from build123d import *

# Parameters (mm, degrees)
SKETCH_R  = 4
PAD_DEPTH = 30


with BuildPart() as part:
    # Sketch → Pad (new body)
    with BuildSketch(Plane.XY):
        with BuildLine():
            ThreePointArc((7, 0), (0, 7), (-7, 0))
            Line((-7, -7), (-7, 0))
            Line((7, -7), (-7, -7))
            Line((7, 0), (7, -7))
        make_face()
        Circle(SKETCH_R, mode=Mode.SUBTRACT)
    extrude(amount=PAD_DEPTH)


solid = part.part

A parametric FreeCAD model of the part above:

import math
import FreeCAD as App
import Part
import Sketcher
Q = App.Units.Quantity

doc = App.newDocument("Part")
body = doc.addObject("PartDesign::Body", "Body")

sketch1 = doc.addObject("Sketcher::SketchObject", "Sketch")
body.addObject(sketch1)
sketch1.AttachmentSupport = (doc.XY_Plane, [""])
sketch1.MapMode = "FlatFace"
sketch1.addGeometry([
    Part.ArcOfCircle(Part.Circle(App.Vector(0, 0, 0), App.Vector(0, 0, 1), 7), math.radians(0), math.radians(180)),
    Part.LineSegment(App.Vector(-7, 0, 0), App.Vector(-7, -7, 0)),
    Part.LineSegment(App.Vector(-7, -7, 0), App.Vector(7, -7, 0)),
    Part.LineSegment(App.Vector(7, -7, 0), App.Vector(7, 0, 0)),
    Part.Circle(App.Vector(0, 0, 0), App.Vector(0, 0, 1), 4),
], False)
sketch1.addConstraint([
    Sketcher.Constraint("Tangent", 0, 2, 1, 1),
    Sketcher.Constraint("Coincident", 1, 2, 2, 1),
    Sketcher.Constraint("Coincident", 2, 2, 3, 1),
    Sketcher.Constraint("Tangent", 3, 2, 0, 1),
    Sketcher.Constraint("Vertical", 1),
    Sketcher.Constraint("Horizontal", 2),
    Sketcher.Constraint("Vertical", 3),
    Sketcher.Constraint("Coincident", 0, 3, -1, 1),
    Sketcher.Constraint("Coincident", 4, 3, -1, 1),
    Sketcher.Constraint("Diameter", 4, Q("8 mm")),
    Sketcher.Constraint("Radius", 0, Q("7 mm")),
    Sketcher.Constraint("DistanceY", 1, 2, 1, 1, Q("7 mm")),
])
pad1 = doc.addObject("PartDesign::Pad", "Pad")
body.addObject(pad1)
pad1.Profile = sketch1
pad1.Length = 30

doc.recompute()
